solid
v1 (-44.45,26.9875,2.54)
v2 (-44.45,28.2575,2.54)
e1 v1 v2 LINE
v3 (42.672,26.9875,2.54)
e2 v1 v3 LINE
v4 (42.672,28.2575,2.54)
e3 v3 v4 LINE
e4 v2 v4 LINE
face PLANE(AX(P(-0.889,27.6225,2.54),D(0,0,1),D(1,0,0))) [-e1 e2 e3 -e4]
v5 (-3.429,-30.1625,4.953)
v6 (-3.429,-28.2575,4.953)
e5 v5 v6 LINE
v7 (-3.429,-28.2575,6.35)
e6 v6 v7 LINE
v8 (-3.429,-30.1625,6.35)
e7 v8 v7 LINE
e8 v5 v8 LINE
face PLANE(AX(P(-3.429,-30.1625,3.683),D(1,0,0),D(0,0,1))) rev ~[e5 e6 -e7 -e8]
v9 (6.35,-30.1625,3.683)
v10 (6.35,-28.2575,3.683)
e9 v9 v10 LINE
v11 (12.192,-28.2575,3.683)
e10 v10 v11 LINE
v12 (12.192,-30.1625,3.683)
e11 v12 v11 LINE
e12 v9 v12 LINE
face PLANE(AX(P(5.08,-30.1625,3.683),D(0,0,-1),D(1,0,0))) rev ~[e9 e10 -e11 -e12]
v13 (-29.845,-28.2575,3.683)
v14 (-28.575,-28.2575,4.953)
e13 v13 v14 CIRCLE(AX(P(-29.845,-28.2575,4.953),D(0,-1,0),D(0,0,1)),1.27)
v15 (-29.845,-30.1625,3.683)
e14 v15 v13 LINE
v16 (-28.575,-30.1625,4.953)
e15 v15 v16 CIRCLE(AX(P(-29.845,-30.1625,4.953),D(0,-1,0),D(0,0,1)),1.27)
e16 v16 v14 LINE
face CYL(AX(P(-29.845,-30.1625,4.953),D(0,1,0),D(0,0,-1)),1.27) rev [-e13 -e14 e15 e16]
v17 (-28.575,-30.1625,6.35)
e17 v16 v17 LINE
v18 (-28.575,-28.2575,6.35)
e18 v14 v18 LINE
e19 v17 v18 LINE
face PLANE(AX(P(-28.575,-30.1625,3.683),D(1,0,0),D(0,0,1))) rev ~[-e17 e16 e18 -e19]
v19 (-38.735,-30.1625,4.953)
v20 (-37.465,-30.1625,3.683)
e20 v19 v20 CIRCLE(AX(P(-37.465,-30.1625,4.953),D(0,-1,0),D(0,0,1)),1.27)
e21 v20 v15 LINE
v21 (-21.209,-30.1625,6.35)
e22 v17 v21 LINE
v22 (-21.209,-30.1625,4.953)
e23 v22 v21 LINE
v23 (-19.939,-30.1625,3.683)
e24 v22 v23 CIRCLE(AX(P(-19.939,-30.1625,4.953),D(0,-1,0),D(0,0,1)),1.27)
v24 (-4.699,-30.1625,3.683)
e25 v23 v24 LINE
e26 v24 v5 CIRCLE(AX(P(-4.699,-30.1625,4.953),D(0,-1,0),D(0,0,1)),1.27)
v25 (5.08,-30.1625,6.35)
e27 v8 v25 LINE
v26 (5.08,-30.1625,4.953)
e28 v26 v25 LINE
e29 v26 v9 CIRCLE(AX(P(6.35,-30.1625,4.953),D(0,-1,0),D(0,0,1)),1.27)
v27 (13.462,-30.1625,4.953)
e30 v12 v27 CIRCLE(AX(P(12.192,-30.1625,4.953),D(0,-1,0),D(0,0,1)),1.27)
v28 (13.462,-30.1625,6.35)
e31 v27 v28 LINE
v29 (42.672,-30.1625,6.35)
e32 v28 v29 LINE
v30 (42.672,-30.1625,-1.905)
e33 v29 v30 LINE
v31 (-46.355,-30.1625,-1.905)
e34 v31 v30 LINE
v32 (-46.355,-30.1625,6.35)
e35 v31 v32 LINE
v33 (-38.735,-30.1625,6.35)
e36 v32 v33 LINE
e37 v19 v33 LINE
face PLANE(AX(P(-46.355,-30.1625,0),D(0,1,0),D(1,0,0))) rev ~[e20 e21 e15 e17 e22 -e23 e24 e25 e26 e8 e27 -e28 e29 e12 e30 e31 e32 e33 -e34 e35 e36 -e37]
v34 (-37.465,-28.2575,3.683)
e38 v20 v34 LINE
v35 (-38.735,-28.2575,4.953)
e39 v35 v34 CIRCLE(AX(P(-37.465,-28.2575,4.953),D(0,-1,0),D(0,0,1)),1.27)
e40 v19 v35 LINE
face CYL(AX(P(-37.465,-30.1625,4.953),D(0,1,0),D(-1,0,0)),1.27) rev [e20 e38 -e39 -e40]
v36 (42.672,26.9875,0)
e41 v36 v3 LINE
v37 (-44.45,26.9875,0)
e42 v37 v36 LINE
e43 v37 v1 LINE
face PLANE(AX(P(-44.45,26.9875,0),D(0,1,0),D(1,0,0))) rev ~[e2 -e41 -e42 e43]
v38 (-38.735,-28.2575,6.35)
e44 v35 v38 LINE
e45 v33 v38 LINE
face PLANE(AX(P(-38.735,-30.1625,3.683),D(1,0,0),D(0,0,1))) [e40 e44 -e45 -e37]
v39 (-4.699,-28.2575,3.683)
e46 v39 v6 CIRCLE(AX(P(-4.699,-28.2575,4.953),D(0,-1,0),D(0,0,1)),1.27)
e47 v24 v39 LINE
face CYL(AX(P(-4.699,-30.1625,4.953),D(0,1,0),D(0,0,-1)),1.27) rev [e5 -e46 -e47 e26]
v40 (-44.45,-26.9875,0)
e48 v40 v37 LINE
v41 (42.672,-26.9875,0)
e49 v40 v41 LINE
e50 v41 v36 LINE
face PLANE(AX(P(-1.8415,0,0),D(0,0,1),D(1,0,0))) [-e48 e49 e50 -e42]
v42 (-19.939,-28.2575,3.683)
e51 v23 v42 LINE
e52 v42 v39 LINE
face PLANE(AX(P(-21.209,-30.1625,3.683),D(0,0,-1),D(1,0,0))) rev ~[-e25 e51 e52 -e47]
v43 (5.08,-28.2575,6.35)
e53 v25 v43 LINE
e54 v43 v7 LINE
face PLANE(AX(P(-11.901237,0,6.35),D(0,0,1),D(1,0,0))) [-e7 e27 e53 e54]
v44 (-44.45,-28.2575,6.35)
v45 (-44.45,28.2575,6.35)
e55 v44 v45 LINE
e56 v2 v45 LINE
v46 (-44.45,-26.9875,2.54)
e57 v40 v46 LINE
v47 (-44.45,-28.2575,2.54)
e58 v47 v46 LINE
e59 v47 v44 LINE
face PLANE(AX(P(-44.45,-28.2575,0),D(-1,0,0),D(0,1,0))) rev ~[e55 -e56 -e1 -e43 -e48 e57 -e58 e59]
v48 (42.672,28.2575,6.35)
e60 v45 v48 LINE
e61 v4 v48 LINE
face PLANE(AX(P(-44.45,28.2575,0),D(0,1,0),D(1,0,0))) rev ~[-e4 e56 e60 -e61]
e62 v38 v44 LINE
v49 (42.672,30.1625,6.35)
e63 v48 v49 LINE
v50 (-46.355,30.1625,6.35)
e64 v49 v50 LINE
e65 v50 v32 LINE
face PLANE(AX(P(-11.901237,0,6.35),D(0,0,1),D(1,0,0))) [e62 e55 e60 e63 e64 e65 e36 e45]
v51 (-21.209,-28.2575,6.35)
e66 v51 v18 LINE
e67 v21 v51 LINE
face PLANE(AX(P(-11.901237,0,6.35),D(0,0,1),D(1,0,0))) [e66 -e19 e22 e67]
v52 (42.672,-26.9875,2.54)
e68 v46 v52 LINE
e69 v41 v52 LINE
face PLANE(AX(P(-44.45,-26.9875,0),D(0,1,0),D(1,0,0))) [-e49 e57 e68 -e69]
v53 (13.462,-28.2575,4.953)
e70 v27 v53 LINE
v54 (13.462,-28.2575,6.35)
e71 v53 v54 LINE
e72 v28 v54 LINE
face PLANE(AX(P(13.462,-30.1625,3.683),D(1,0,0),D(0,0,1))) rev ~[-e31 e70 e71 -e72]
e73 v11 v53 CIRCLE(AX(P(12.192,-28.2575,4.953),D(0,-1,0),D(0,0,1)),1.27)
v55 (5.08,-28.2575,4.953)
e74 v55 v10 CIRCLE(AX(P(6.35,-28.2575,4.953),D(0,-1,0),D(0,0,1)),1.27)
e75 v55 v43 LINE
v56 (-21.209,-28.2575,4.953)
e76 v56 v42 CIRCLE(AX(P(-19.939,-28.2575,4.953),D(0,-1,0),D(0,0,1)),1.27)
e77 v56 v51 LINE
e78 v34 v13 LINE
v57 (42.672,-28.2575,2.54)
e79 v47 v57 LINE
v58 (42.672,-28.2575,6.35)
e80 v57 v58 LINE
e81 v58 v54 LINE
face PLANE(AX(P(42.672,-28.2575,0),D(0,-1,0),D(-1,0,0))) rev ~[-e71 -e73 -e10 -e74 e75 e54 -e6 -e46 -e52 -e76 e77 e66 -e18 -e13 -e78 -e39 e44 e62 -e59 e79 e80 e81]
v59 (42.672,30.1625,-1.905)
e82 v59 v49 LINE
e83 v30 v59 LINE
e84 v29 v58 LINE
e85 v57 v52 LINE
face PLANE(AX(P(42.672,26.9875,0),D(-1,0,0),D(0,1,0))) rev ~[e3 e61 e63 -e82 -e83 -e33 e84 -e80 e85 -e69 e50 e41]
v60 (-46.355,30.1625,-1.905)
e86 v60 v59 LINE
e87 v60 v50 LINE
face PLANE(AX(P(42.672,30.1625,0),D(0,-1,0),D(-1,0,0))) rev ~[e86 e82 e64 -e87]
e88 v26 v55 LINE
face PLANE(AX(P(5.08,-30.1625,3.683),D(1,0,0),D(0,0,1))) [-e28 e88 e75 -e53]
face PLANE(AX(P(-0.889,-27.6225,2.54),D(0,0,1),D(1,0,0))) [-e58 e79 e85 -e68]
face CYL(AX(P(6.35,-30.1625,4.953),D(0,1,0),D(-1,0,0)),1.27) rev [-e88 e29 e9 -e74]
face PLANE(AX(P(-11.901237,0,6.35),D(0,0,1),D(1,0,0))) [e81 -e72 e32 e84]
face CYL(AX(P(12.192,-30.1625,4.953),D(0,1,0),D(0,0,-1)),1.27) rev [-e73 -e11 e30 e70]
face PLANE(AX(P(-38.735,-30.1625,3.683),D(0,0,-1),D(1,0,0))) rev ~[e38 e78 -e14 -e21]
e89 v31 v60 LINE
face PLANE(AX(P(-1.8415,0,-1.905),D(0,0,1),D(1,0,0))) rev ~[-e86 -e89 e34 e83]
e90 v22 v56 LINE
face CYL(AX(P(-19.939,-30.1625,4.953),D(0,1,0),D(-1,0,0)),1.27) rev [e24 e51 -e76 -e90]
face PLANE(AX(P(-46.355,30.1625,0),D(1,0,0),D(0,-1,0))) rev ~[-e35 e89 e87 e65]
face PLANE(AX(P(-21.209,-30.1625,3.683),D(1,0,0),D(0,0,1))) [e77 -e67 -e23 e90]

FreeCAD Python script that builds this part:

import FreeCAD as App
import Part
import Sketcher
from FreeCAD import Vector
Q = App.Units.Quantity


def edges_at(feature, points):
    """Names of the edges that pass closest to the given points."""
    edges = feature.Shape.Edges
    near = lambda p: min(range(len(edges)), key=lambda i: edges[i].distToShape(Part.Vertex(*p))[0])
    return sorted({f"Edge{near(p) + 1}" for p in points})


def add_polygon(sketch, points):
    """Adds a closed chain of lines whose ends are joined by coincident constraints."""
    first, n = sketch.GeometryCount, len(points)
    for a, b in zip(points, points[1:] + points[:1]):
        sketch.addGeometry(Part.LineSegment(App.Vector(*a, 0), App.Vector(*b, 0)), False)
    for i in range(n):
        sketch.addConstraint(Sketcher.Constraint("Coincident", first + i, 2, first + (i + 1) % n, 1))

doc = App.newDocument("Part")
params = doc.addObject("Spreadsheet::Sheet", "Params")
for row, (alias, value) in enumerate([
    ("sketch1_width", "3.505 in"),
    ("sketch1_height", "2.375 in"),
    ("pad1_length", "0.075 in"),
    ("sketch2_width", "3.43 in"),
    ("sketch2_width2", "3.505 in"),
    ("sketch2_height", "2.225 in"),
    ("pad2_length", "0.25 in"),
    ("sketch3_width", "3.43 in"),
    ("sketch3_height", "0.05 in"),
    ("pad3_length", "0.1 in"),
    ("sketch4_width", "0.4 in"),
    ("sketch4_width2", "0.7 in"),
    ("sketch4_width3", "0.33 in"),
    ("sketch4_height", "0.105 in"),
    ("pocket1_length", "1 in"),
    ("fillet_radius", "0.05 in"),
], start=1):
    params.set(f"A{row}", alias)
    params.set(f"B{row}", "=" + value)
    params.setAlias(f"B{row}", alias)

body = doc.addObject("PartDesign::Body", "Body")

sketch1 = body.newObject("Sketcher::SketchObject", "Sketch")
sketch1.AttachmentSupport = (doc.getObject("XY_Plane"), [""])
sketch1.MapMode = "FlatFace"
add_polygon(sketch1, [(-46.355, 30.1625), (-46.355, -30.1625), (42.672, -30.1625), (42.672, 30.1625)])
sketch1.addConstraint([
    Sketcher.Constraint("Vertical", 0),
    Sketcher.Constraint("Horizontal", 1),
    Sketcher.Constraint("Vertical", 2),
    Sketcher.Constraint("Horizontal", 3),
    Sketcher.Constraint("DistanceX", 1, 1, 1, 2, Q("3.505 in")),
    Sketcher.Constraint("DistanceY", 0, 2, 0, 1, Q("2.375 in")),
    Sketcher.Constraint("DistanceX", -1, 1, 1, 2, Q("1.68 in")),
    Sketcher.Constraint("DistanceY", 0, 2, -1, 1, Q("1.1875 in")),
])
sketch1.setExpression("Constraints[8]", "Params.sketch1_width")
sketch1.setExpression("Constraints[9]", "Params.sketch1_height")
pad1 = body.newObject("PartDesign::Pad", "Pad")
pad1.Profile = sketch1
pad1.setExpression("Length", "Params.pad1_length")
pad1.Reversed = True

sketch2 = body.newObject("Sketcher::SketchObject", "Sketch001")
sketch2.AttachmentSupport = (doc.getObject("XY_Plane"), [""])
sketch2.MapMode = "FlatFace"
add_polygon(sketch2, [(-44.45, -28.2575), (-44.45, 28.2575), (42.672, 28.2575), (42.672, 30.1625), (-46.355, 30.1625), (-46.355, -30.1625), (42.672, -30.1625), (42.672, -28.2575)])
sketch2.addConstraint([
    Sketcher.Constraint("Vertical", 0),
    Sketcher.Constraint("Horizontal", 1),
    Sketcher.Constraint("Vertical", 2),
    Sketcher.Constraint("Horizontal", 3),
    Sketcher.Constraint("Vertical", 4),
    Sketcher.Constraint("Horizontal", 5),
    Sketcher.Constraint("Vertical", 6),
    Sketcher.Constraint("Horizontal", 7),
    Sketcher.Constraint("Symmetric", 2, 2, 5, 2, -1),
    Sketcher.Constraint("Equal", 2, 6),
    Sketcher.Constraint("DistanceX", 1, 1, 1, 2, Q("3.43 in")),
    Sketcher.Constraint("DistanceY", 4, 2, 0, 2, Q("2.3 in")),
    Sketcher.Constraint("DistanceX", 3, 2, 3, 1, Q("3.505 in")),
    Sketcher.Constraint("DistanceY", 0, 1, 0, 2, Q("2.225 in")),
    Sketcher.Constraint("DistanceX", 0, 2, -1, 1, Q("1.75 in")),
])
sketch2.setExpression("Constraints[18]", "Params.sketch2_width")
sketch2.setExpression("Constraints[20]", "Params.sketch2_width2")
sketch2.setExpression("Constraints[21]", "Params.sketch2_height")
pad2 = body.newObject("PartDesign::Pad", "Pad001")
pad2.Profile = sketch2
pad2.setExpression("Length", "Params.pad2_length")

sketch3 = body.newObject("Sketcher::SketchObject", "Sketch002")
sketch3.AttachmentSupport = (doc.getObject("XY_Plane"), [""])
sketch3.MapMode = "FlatFace"
add_polygon(sketch3, [(-44.45, 28.2575), (-44.45, 26.9875), (42.672, 26.9875), (42.672, 28.2575)])
add_polygon(sketch3, [(-44.45, -26.9875), (-44.45, -28.2575), (42.672, -28.2575), (42.672, -26.9875)])
sketch3.addConstraint([
    Sketcher.Constraint("Vertical", 0),
    Sketcher.Constraint("Horizontal", 1),
    Sketcher.Constraint("Vertical", 2),
    Sketcher.Constraint("Horizontal", 3),
    Sketcher.Constraint("Vertical", 4),
    Sketcher.Constraint("Horizontal", 5),
    Sketcher.Constraint("Vertical", 6),
    Sketcher.Constraint("Horizontal", 7),
    Sketcher.Constraint("Symmetric", 3, 2, 4, 2, -1),
    Sketcher.Constraint("Symmetric", 1, 2, 6, 2, -1),
    Sketcher.Constraint("DistanceX", 1, 1, 1, 2, Q("3.43 in")),
    Sketcher.Constraint("DistanceY", 0, 2, 0, 1, Q("0.05 in")),
    Sketcher.Constraint("DistanceX", 0, 2, -1, 1, Q("1.75 in")),
    Sketcher.Constraint("DistanceY", -1, 1, 0, 2, Q("1.0625 in")),
])
sketch3.setExpression("Constraints[18]", "Params.sketch3_width")
sketch3.setExpression("Constraints[19]", "Params.sketch3_height")
pad3 = body.newObject("PartDesign::Pad", "Pad002")
pad3.Profile = sketch3
pad3.setExpression("Length", "Params.pad3_length")

sketch4 = body.newObject("Sketcher::SketchObject", "Sketch003")
sketch4.AttachmentSupport = (doc.getObject("XZ_Plane"), [""])
sketch4.MapMode = "FlatFace"
sketch4.AttachmentOffset = App.Placement(Vector(0, 0, 1.1875 * 25.4), App.Rotation())
add_polygon(sketch4, [(-38.735, 6.35), (-38.735, 3.683), (-28.575, 3.683), (-28.575, 6.35)])
add_polygon(sketch4, [(-21.209, 6.35), (-21.209, 3.683), (-3.429, 3.683), (-3.429, 6.35)])
add_polygon(sketch4, [(5.08, 6.35), (5.08, 3.683), (13.462, 3.683), (13.462, 6.35)])
sketch4.addConstraint([
    Sketcher.Constraint("Vertical", 0),
    Sketcher.Constraint("Horizontal", 1),
    Sketcher.Constraint("Vertical", 2),
    Sketcher.Constraint("Horizontal", 3),
    Sketcher.Constraint("Vertical", 4),
    Sketcher.Constraint("Horizontal", 5),
    Sketcher.Constraint("Vertical", 6),
    Sketcher.Constraint("Horizontal", 7),
    Sketcher.Constraint("Vertical", 8),
    Sketcher.Constraint("Horizontal", 9),
    Sketcher.Constraint("Vertical", 10),
    Sketcher.Constraint("Horizontal", 11),
    Sketcher.Constraint("Horizontal", 1, 2, 4, 2),
    Sketcher.Constraint("Horizontal", 3, 2, 6, 2),
    Sketcher.Constraint("Horizontal", 5, 2, 8, 2),
    Sketcher.Constraint("Horizontal", 7, 2, 10, 2),
    Sketcher.Constraint("DistanceX", 1, 1, 1, 2, Q("0.4 in")),
    Sketcher.Constraint("DistanceX", 5, 1, 5, 2, Q("0.7 in")),
    Sketcher.Constraint("DistanceX", 9, 1, 9, 2, Q("0.33 in")),
    Sketcher.Constraint("DistanceX", -1, 1, 8, 2, Q("0.2 in")),
    Sketcher.Constraint("DistanceY", 0, 2, 0, 1, Q("0.105 in")),
    Sketcher.Constraint("DistanceY", -1, 1, 2, 2, Q("0.25 in")),
    Sketcher.Constraint("DistanceX", 1, 2, 4, 2, Q("0.29 in")),
    Sketcher.Constraint("DistanceX", 0, 2, -1, 1, Q("1.525 in")),
])
sketch4.setExpression("Constraints[28]", "Params.sketch4_width")
sketch4.setExpression("Constraints[29]", "Params.sketch4_width2")
sketch4.setExpression("Constraints[30]", "Params.sketch4_width3")
sketch4.setExpression("Constraints[32]", "Params.sketch4_height")
pocket1 = body.newObject("PartDesign::Pocket", "Pocket")
pocket1.Profile = sketch4
pocket1.setExpression("Length", "Params.pocket1_length")
doc.recompute()

fillet = body.newObject("PartDesign::Fillet", "Fillet")
fillet.Base = (pocket1, edges_at(pocket1, [
    (-38.735, -29.21, 3.683),
    (-28.575, -29.21, 3.683),
    (5.08, -29.21, 3.683),
    (13.462, -29.21, 3.683),
    (-3.429, -29.21, 3.683),
    (-21.209, -29.21, 3.683),
]))
fillet.setExpression("Radius", "Params.fillet_radius")

doc.recompute()
